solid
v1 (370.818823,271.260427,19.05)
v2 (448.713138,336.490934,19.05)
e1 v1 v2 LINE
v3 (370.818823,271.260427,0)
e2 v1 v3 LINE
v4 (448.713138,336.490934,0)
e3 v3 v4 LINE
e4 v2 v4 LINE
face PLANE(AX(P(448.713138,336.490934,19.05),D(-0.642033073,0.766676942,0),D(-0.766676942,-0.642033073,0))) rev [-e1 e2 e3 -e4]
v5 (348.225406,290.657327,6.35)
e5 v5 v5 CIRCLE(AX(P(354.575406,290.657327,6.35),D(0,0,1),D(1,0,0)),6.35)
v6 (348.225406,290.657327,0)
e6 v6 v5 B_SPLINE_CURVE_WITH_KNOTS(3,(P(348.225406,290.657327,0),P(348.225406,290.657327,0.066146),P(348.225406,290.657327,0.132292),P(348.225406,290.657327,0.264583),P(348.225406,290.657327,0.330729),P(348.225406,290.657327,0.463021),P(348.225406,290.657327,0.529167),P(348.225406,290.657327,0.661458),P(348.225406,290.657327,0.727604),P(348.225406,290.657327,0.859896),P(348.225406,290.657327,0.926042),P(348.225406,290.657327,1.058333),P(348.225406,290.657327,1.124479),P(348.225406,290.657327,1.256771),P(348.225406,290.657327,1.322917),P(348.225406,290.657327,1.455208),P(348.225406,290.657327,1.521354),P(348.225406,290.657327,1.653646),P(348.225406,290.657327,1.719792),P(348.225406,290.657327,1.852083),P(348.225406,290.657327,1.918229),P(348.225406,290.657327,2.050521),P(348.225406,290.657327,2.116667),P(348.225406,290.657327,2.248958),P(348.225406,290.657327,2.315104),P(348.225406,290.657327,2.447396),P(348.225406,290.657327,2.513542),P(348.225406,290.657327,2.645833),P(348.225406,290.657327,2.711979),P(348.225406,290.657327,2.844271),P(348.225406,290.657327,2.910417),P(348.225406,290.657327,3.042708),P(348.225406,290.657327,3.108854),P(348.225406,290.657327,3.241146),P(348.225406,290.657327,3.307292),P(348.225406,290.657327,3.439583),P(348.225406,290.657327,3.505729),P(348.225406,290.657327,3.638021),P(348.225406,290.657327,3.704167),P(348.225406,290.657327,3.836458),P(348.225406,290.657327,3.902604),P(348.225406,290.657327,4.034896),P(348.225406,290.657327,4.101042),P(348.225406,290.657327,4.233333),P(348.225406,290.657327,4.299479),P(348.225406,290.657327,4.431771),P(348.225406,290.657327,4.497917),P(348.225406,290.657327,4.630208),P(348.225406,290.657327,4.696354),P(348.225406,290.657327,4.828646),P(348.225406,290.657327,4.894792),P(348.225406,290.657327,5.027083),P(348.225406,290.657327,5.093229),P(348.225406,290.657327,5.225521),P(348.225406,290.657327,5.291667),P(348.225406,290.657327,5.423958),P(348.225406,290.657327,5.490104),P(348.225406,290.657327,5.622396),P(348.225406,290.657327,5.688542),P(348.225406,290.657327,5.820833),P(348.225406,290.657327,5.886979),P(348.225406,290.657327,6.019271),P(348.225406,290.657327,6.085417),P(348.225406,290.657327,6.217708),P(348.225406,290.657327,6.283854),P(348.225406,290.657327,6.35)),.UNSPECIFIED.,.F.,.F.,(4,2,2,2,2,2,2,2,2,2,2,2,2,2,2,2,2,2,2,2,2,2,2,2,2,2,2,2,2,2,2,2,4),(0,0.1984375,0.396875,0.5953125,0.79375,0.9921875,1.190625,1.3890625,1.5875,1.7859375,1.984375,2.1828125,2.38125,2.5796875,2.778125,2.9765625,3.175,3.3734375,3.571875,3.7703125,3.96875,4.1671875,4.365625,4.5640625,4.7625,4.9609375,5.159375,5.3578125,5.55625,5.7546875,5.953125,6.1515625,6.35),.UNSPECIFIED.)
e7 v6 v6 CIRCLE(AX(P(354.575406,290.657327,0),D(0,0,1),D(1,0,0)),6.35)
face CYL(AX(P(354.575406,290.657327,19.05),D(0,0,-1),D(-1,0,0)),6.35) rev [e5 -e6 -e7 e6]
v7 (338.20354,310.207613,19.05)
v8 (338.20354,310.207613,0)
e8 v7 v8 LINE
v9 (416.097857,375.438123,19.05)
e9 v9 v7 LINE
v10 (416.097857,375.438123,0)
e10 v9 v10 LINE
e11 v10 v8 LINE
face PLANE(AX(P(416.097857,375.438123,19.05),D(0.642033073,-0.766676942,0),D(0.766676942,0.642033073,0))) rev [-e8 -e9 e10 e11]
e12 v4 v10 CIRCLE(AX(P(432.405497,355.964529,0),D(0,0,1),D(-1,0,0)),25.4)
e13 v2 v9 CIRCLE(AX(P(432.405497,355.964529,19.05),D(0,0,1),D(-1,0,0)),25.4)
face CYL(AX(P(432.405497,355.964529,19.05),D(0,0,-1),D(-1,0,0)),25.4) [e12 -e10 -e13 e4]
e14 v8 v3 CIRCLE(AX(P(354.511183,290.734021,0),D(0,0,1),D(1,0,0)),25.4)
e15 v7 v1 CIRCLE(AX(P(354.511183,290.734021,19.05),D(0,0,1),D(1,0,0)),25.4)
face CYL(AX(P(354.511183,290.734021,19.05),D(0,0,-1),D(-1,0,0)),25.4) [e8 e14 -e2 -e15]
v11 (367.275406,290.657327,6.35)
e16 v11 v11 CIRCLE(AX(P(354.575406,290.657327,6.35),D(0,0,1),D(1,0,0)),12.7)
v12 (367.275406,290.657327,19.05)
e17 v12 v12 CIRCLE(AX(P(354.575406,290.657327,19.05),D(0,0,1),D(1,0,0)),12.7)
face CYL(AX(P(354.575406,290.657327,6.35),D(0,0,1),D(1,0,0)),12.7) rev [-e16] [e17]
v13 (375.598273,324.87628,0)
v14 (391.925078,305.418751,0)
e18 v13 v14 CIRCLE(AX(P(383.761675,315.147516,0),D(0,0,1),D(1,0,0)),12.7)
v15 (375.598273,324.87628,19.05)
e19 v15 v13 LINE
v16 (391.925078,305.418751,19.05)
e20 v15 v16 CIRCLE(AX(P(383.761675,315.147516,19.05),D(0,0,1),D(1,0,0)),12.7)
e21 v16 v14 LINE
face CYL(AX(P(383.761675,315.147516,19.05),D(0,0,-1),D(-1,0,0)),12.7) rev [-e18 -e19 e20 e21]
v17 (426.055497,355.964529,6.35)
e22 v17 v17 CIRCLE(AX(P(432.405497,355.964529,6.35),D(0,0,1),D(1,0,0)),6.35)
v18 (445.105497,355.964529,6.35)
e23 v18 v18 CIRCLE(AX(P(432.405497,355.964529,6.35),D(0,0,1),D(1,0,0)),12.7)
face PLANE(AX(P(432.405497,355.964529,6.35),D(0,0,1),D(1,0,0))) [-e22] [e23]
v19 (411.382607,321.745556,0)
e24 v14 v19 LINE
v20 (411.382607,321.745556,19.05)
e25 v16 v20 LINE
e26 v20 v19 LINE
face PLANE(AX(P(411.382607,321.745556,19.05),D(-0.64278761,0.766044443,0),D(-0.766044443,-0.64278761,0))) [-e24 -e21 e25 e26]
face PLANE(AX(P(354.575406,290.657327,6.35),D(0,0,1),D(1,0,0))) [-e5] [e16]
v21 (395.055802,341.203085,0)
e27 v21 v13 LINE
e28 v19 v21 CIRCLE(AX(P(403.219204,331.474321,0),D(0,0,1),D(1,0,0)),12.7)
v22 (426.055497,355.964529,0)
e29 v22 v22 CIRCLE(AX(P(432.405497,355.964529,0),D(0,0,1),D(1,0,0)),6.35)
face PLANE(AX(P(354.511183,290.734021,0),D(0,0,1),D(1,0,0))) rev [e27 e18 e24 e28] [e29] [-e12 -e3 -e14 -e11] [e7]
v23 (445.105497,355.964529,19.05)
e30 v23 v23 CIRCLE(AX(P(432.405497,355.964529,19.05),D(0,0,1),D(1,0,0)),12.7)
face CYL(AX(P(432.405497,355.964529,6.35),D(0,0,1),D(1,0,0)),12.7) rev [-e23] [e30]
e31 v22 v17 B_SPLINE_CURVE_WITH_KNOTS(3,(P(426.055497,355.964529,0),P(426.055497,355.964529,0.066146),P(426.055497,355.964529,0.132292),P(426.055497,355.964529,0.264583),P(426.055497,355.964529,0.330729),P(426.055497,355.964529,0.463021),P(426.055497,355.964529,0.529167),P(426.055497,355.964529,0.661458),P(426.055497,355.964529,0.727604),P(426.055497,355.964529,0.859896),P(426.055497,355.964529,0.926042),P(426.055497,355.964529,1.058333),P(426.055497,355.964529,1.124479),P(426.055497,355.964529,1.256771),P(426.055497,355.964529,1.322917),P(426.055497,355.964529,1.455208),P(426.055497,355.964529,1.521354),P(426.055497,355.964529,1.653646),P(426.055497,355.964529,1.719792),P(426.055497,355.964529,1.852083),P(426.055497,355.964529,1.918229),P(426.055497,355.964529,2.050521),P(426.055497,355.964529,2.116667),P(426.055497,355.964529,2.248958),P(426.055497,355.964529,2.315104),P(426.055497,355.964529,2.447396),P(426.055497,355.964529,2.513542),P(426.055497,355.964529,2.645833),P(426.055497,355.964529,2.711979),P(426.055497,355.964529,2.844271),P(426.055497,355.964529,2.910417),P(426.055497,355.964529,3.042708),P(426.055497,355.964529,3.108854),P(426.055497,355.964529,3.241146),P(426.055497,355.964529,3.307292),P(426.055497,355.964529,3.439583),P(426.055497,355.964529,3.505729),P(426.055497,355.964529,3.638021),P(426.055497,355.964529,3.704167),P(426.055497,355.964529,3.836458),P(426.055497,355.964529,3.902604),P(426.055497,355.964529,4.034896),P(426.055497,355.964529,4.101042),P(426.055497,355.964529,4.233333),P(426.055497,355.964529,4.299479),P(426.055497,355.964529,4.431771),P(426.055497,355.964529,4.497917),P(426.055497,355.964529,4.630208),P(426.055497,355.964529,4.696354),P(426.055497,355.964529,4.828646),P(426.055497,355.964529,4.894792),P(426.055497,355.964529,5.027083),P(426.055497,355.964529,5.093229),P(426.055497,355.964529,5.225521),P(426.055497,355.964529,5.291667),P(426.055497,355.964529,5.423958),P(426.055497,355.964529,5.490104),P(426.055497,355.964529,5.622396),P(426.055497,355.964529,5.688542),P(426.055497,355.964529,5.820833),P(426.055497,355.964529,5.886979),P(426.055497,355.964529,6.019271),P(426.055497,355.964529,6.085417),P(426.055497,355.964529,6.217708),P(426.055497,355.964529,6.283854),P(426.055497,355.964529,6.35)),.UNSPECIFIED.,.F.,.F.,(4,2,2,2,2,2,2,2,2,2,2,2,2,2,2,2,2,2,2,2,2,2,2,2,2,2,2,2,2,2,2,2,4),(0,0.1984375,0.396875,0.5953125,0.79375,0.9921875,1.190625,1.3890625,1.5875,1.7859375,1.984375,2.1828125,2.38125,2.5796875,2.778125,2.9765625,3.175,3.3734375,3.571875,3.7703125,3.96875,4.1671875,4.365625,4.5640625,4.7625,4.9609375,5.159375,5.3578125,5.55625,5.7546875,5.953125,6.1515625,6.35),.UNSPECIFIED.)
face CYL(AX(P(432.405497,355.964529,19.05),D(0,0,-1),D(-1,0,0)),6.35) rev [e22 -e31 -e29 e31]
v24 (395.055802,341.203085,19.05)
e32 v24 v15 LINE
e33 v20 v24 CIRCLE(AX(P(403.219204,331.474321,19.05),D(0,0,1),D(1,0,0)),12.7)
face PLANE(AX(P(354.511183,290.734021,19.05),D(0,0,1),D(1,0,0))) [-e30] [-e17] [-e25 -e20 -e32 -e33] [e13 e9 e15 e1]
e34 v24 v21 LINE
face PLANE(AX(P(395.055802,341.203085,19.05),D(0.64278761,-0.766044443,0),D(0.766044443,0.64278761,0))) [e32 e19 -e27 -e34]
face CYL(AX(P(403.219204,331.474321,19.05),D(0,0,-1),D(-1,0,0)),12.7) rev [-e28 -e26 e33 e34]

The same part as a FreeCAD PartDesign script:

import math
import FreeCAD as App
import Part
import Sketcher
Q = App.Units.Quantity

doc = App.newDocument("Part")
body = doc.addObject("PartDesign::Body", "Body")

sketch1 = doc.addObject("Sketcher::SketchObject", "Sketch")
body.addObject(sketch1)
sketch1.AttachmentSupport = (doc.XY_Plane, [""])
sketch1.MapMode = "FlatFace"
sketch1.addGeometry([
    Part.LineSegment(App.Vector(416, 375, 0), App.Vector(338, 310, 0)),
    Part.ArcOfCircle(Part.Circle(App.Vector(355, 291, 0), App.Vector(0, 0, 1), 25), math.radians(130), math.radians(310)),
    Part.LineSegment(App.Vector(371, 271, 0), App.Vector(449, 336, 0)),
    Part.ArcOfCircle(Part.Circle(App.Vector(432, 356, 0), App.Vector(0, 0, 1), 25), math.radians(-50), math.radians(130)),
    Part.Circle(App.Vector(355, 291, 0), App.Vector(0, 0, 1), 6),
    Part.ArcOfCircle(Part.Circle(App.Vector(403, 331, 0), App.Vector(0, 0, 1), 13), math.radians(-50), math.radians(130)),
    Part.LineSegment(App.Vector(411, 322, 0), App.Vector(392, 305, 0)),
    Part.ArcOfCircle(Part.Circle(App.Vector(384, 315, 0), App.Vector(0, 0, 1), 13), math.radians(130), math.radians(310)),
    Part.LineSegment(App.Vector(376, 325, 0), App.Vector(395, 341, 0)),
    Part.Circle(App.Vector(432, 356, 0), App.Vector(0, 0, 1), 6),
], False)
sketch1.addConstraint([
    Sketcher.Constraint("Tangent", 0, 2, 1, 1),
    Sketcher.Constraint("Tangent", 1, 2, 2, 1),
    Sketcher.Constraint("Tangent", 2, 2, 3, 1),
    Sketcher.Constraint("Tangent", 3, 2, 0, 1),
    Sketcher.Constraint("Tangent", 5, 1, 6, 1),
    Sketcher.Constraint("Tangent", 6, 2, 7, 2),
    Sketcher.Constraint("Tangent", 7, 1, 8, 1),
    Sketcher.Constraint("Tangent", 8, 2, 5, 2),
    Sketcher.Constraint("Coincident", 9, 3, 3, 3),
    Sketcher.Constraint("Equal", 1, 3),
    Sketcher.Constraint("Equal", 5, 7),
    Sketcher.Constraint("Equal", 4, 9),
    Sketcher.Constraint("Radius", 1, Q("1 in")),
    Sketcher.Constraint("Diameter", 4, Q("0.5 in")),
    Sketcher.Constraint("Radius", 5, Q("0.5 in")),
    Sketcher.Constraint("Distance", 6, Q("1 in")),
    Sketcher.Constraint("Angle", 6, Q("-140 deg")),
    Sketcher.Constraint("DistanceX", -1, 1, 0, 2, Q("13.3151 in")),
    Sketcher.Constraint("DistanceX", -1, 1, 8, 2, Q("395.055802 mm")),
    Sketcher.Constraint("DistanceY", 4, 3, 3, 3, Q("65.307201 mm")),
    Sketcher.Constraint("DistanceY", 1, 3, 5, 3, Q("40.7403 mm")),
    Sketcher.Constraint("DistanceX", 4, 3, 5, 3, Q("48.643799 mm")),
    Sketcher.Constraint("DistanceY", 1, 2, 4, 3, Q("19.3969 mm")),
    Sketcher.Constraint("DistanceY", -1, 1, 1, 3, Q("290.734021 mm")),
    Sketcher.Constraint("DistanceY", -1, 1, 3, 3, Q("355.964529 mm")),
])
pad1 = doc.addObject("PartDesign::Pad", "Pad")
body.addObject(pad1)
pad1.Profile = sketch1
pad1.Length = Q("0.75 in")

sketch2 = doc.addObject("Sketcher::SketchObject", "Sketch001")
body.addObject(sketch2)
sketch2.AttachmentSupport = (doc.XY_Plane, [""])
sketch2.MapMode = "FlatFace"
sketch2.AttachmentOffset = App.Placement(App.Vector(0, 0, 0.75 * 25.4), App.Rotation())
sketch2.addGeometry([
    Part.Circle(App.Vector(355, 291, 0), App.Vector(0, 0, 1), 13),
    Part.Circle(App.Vector(432, 356, 0), App.Vector(0, 0, 1), 13),
], False)
sketch2.addConstraint([
    Sketcher.Constraint("Equal", 0, 1),
    Sketcher.Constraint("Diameter", 0, Q("1 in")),
    Sketcher.Constraint("DistanceY", 0, 3, 1, 3, Q("65.307201 mm")),
    Sketcher.Constraint("DistanceY", -1, 1, 1, 3, Q("355.964529 mm")),
    Sketcher.Constraint("DistanceX", 0, 3, 1, 3, Q("77.830092 mm")),
    Sketcher.Constraint("DistanceX", -1, 1, 0, 3, Q("354.575406 mm")),
])
pocket1 = doc.addObject("PartDesign::Pocket", "Pocket")
body.addObject(pocket1)
pocket1.Profile = sketch2
pocket1.Length = Q("0.5 in")

doc.recompute()
